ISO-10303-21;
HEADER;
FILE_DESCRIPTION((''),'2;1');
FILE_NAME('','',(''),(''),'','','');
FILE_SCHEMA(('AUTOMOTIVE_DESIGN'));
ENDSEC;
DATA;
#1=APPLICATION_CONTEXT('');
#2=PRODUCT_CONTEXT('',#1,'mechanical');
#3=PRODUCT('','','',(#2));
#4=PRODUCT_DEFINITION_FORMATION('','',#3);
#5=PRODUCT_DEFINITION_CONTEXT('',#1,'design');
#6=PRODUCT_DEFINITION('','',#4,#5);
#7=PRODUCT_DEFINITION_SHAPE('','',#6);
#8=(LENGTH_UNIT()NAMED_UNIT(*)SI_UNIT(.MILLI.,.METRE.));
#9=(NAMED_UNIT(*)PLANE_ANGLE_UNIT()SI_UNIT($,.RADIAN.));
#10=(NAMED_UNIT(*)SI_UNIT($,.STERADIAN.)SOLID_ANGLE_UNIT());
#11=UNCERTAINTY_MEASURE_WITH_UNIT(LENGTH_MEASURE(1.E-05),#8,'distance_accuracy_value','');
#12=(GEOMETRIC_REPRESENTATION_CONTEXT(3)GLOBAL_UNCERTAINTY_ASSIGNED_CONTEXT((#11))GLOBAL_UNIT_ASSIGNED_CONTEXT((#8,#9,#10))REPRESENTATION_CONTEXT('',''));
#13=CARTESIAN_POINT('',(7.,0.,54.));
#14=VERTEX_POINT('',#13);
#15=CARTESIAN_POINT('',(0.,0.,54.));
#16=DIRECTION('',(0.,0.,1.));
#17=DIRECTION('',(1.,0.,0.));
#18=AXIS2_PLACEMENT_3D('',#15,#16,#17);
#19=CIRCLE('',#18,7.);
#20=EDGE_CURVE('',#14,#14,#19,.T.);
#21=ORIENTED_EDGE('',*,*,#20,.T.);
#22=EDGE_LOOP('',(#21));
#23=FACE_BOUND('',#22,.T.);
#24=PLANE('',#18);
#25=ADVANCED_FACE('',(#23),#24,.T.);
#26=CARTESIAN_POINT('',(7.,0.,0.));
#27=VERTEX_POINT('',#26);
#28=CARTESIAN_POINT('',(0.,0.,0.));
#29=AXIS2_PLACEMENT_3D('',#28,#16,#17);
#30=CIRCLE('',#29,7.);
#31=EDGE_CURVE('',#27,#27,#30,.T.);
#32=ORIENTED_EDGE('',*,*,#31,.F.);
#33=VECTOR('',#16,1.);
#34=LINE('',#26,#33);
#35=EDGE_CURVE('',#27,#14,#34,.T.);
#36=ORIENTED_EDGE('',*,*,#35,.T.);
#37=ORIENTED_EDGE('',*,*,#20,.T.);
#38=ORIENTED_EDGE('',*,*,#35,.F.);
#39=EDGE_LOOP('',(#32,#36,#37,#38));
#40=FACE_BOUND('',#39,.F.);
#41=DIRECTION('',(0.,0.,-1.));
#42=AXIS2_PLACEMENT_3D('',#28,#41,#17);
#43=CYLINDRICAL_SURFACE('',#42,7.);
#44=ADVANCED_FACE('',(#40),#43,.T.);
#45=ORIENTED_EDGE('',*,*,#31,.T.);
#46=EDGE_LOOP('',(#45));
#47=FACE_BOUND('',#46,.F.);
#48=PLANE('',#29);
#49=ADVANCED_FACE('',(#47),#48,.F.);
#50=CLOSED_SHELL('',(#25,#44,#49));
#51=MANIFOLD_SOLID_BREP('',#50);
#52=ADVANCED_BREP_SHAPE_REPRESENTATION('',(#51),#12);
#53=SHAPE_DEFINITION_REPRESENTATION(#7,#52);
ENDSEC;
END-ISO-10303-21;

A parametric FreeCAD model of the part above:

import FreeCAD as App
import Part
import Sketcher
from FreeCAD import Vector

doc = App.newDocument("Part")
body = doc.addObject("PartDesign::Body", "Body")

# Sketch on XY plane
sketch1 = body.newObject("Sketcher::SketchObject", "Sketch")
sketch1.AttachmentSupport = (doc.getObject("XY_Plane"), [""])
sketch1.MapMode = "FlatFace"
sketch1.addGeometry(Part.Circle(Vector(0, 0, 0), Vector(0, 0, 1), 7), False)
sketch1.addConstraint([
    Sketcher.Constraint("Coincident", 0, 3, -1, 1),
    Sketcher.Constraint("Diameter", 0, 14.0),
])
pad1 = body.newObject("PartDesign::Pad", "Pad")
pad1.Profile = sketch1
pad1.Length = 54

doc.recompute()
